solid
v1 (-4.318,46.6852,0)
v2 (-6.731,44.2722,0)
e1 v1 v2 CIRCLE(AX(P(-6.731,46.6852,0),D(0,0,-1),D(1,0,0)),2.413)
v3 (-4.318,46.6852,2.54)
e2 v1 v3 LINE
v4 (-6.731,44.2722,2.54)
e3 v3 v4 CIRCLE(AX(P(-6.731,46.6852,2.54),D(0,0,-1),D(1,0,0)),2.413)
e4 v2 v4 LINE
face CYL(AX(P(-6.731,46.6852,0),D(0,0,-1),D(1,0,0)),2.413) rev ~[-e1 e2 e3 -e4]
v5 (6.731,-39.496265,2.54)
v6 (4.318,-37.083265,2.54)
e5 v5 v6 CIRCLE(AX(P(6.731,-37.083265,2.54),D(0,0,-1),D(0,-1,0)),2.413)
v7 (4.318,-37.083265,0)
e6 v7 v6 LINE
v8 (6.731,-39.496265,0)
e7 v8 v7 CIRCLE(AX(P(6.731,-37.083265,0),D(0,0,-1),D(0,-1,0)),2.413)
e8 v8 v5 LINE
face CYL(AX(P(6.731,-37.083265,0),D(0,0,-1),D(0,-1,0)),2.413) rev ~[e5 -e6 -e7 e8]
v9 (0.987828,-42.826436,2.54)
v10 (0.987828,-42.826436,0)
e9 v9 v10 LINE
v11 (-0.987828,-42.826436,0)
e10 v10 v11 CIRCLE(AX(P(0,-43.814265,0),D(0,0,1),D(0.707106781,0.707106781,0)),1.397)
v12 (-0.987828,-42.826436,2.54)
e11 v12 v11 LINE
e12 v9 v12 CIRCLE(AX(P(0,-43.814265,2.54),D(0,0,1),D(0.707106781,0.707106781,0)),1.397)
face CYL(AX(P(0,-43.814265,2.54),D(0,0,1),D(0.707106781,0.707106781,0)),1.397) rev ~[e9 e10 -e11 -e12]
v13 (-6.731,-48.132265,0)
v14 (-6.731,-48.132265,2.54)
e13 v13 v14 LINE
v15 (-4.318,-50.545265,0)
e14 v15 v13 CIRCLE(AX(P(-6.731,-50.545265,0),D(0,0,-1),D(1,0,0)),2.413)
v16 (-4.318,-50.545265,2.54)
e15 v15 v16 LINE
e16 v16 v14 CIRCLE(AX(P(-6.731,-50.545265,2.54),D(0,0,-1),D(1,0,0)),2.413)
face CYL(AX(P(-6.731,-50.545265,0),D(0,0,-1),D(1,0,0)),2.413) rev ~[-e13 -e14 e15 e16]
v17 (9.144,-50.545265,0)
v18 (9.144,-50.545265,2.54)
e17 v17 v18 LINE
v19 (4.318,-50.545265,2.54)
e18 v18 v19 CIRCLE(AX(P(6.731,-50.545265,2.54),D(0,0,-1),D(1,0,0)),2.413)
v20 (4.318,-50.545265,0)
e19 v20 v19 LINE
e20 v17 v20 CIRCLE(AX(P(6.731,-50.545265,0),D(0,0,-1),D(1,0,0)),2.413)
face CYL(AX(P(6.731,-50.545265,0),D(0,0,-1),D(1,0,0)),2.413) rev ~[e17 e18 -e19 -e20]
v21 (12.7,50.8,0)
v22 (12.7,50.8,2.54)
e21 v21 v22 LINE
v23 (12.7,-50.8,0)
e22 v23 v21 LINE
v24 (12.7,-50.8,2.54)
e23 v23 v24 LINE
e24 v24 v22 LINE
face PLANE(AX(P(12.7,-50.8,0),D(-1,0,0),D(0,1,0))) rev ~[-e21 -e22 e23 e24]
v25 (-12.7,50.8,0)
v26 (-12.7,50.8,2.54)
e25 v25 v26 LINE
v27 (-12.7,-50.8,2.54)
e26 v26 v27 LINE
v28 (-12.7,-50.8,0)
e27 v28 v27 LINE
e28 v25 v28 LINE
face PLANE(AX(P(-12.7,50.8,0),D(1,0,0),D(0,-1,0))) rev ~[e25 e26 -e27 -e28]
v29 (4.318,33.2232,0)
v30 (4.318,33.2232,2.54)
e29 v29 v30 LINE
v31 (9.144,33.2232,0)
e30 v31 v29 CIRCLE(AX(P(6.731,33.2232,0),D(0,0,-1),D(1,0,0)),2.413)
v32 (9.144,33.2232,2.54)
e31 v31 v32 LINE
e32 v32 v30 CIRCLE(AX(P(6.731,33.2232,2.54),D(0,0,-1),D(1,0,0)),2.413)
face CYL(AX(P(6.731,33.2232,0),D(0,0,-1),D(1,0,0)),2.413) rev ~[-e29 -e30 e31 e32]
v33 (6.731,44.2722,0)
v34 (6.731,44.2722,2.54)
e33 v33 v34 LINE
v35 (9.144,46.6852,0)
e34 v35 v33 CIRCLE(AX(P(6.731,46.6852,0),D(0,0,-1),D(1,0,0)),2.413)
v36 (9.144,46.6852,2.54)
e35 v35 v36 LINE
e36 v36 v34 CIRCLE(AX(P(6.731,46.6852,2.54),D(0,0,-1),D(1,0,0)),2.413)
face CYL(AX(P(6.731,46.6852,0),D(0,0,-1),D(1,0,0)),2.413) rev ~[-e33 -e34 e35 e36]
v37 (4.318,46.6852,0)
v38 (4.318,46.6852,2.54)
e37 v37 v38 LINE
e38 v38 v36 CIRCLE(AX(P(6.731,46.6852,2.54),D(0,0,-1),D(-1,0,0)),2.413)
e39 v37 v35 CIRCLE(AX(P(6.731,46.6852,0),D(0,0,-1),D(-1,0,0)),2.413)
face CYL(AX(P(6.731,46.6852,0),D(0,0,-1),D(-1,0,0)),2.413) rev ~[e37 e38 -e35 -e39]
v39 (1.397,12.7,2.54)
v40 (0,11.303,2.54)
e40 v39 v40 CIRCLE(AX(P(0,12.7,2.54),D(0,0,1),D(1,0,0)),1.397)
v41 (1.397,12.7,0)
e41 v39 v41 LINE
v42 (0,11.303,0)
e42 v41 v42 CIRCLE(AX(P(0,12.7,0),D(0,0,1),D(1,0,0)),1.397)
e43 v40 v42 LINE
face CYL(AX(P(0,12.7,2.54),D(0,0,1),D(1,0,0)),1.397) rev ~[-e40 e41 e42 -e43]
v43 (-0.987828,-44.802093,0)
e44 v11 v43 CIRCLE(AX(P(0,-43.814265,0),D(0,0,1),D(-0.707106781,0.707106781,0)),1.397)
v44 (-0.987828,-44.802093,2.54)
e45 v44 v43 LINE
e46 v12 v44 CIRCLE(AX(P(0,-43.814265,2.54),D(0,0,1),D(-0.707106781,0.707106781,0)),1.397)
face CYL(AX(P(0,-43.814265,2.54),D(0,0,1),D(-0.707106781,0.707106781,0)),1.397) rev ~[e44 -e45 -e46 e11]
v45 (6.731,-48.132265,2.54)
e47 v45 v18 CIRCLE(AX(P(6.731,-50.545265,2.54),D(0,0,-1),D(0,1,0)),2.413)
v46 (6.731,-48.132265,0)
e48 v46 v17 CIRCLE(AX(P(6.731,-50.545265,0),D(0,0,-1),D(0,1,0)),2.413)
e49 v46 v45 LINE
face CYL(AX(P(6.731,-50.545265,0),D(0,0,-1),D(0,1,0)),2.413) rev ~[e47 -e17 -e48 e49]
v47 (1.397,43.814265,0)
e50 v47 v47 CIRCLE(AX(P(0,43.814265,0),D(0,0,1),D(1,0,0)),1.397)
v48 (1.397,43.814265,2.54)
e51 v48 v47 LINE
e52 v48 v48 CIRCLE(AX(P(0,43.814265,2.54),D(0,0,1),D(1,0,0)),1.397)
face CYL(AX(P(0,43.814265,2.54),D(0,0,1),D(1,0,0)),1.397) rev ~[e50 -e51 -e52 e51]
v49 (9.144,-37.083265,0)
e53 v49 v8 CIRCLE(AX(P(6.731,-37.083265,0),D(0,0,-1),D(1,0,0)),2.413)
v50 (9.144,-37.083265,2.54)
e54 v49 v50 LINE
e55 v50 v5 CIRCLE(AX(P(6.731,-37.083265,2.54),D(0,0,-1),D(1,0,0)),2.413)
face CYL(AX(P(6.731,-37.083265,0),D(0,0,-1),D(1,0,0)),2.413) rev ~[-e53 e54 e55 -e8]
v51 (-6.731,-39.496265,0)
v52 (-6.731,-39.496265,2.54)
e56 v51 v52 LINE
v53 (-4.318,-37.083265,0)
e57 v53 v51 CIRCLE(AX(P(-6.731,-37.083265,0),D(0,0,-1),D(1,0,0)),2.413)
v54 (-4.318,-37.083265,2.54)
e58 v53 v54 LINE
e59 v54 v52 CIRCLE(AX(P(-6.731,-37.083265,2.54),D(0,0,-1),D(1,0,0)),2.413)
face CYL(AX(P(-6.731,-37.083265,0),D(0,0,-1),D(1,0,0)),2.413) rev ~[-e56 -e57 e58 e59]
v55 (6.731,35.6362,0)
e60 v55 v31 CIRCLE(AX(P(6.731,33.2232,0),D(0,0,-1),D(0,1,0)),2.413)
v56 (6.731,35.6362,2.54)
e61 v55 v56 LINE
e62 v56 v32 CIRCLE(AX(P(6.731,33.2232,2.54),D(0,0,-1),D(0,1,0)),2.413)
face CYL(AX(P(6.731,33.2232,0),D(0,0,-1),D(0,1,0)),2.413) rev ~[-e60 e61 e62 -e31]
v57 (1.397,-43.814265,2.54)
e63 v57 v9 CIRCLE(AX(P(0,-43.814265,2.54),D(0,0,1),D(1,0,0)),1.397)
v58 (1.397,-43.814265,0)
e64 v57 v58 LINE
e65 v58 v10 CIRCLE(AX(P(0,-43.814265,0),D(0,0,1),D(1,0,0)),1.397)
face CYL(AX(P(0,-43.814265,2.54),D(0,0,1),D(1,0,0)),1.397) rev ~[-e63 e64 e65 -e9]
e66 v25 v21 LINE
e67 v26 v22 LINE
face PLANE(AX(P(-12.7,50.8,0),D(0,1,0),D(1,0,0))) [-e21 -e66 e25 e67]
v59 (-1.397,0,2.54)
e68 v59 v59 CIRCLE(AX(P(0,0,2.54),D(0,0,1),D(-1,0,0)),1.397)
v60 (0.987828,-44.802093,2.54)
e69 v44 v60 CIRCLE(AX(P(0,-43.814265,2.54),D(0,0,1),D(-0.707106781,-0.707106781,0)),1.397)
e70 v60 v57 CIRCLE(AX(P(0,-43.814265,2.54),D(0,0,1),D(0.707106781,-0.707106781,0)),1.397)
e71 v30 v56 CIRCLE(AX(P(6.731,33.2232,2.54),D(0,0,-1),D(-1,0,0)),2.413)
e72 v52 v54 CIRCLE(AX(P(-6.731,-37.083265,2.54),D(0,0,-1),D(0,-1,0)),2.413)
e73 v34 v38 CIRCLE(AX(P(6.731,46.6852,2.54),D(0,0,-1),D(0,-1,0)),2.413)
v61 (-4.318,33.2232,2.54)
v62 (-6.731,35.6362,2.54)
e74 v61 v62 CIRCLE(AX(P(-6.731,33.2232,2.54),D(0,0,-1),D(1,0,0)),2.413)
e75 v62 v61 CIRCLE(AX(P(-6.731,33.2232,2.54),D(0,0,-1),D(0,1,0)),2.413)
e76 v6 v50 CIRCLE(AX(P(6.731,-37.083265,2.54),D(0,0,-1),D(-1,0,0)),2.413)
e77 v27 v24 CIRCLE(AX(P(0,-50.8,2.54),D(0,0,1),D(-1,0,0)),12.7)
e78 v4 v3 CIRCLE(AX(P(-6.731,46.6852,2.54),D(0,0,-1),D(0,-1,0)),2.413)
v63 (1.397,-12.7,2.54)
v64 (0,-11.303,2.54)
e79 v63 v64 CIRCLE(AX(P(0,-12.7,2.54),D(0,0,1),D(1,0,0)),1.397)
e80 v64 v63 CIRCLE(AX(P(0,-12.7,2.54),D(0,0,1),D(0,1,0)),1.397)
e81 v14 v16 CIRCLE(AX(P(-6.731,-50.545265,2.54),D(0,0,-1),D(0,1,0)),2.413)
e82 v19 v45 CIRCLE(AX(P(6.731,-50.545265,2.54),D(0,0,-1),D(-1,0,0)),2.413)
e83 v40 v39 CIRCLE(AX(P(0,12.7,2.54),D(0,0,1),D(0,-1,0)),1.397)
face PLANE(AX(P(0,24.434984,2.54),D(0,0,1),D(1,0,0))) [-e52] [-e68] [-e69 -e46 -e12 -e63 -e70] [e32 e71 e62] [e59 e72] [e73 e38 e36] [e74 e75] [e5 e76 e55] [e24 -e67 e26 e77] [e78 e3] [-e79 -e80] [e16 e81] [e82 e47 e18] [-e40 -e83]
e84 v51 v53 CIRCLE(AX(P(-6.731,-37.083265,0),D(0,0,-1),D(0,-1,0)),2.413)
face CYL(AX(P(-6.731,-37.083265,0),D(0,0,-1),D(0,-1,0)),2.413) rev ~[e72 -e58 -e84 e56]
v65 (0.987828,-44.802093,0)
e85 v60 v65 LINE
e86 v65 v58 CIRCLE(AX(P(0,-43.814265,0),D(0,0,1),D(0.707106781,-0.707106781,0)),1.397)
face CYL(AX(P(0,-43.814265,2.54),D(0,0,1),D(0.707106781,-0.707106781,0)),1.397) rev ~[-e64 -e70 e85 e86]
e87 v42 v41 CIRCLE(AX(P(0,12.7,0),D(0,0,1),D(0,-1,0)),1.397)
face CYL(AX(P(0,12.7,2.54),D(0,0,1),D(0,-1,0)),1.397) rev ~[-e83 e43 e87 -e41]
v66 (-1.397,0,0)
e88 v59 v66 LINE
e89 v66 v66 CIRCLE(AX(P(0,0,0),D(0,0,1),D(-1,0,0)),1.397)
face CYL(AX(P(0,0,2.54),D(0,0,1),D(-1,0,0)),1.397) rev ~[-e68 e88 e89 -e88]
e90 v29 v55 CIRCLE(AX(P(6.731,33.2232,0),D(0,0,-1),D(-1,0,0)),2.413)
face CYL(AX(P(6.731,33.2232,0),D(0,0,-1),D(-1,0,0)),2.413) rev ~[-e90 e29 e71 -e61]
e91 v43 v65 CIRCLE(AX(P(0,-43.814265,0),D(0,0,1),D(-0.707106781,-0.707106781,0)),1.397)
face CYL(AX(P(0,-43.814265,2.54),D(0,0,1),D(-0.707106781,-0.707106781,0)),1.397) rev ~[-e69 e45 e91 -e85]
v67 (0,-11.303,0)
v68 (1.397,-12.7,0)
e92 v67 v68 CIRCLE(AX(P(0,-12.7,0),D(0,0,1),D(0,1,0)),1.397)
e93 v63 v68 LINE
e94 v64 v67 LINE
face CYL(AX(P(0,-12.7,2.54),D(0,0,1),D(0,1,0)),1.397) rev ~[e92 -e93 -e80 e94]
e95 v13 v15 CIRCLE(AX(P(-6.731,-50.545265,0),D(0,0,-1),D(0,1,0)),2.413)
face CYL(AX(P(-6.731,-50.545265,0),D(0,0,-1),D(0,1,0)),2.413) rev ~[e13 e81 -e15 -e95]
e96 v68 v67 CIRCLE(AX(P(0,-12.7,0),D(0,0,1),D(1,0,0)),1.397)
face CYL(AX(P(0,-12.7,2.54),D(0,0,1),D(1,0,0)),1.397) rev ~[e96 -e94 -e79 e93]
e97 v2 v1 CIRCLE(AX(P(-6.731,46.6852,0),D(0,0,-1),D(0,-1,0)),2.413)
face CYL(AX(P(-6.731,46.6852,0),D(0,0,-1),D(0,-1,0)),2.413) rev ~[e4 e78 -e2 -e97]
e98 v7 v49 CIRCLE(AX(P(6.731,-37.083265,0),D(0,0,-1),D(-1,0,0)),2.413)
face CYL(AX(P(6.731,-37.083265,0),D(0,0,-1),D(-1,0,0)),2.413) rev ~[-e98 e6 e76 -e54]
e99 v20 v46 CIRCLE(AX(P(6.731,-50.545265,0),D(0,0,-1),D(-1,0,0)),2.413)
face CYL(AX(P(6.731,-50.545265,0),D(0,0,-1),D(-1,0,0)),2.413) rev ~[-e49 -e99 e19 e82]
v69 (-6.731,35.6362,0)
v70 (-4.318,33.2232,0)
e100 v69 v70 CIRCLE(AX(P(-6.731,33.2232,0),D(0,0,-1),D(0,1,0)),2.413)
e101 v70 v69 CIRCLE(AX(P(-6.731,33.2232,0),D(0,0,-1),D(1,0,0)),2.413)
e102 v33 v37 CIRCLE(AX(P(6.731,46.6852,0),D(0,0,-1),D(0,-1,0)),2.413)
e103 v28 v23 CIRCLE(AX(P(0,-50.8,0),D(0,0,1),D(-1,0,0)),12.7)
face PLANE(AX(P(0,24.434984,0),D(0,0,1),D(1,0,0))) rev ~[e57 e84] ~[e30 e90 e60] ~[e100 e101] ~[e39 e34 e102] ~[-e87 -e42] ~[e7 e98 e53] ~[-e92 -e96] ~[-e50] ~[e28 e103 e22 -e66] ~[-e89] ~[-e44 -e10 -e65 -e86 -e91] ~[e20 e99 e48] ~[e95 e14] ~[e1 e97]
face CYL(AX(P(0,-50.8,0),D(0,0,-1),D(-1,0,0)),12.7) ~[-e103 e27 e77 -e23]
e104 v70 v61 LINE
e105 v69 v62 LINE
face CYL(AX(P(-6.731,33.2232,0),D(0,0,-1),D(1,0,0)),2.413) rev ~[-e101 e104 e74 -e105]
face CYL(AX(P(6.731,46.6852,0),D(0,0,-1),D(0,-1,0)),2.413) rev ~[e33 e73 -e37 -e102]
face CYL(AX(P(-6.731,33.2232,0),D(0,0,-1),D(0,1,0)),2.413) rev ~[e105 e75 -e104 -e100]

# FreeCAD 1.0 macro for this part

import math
import FreeCAD as App
import Part
import Sketcher
Q = App.Units.Quantity

doc = App.newDocument("Part")
body = doc.addObject("PartDesign::Body", "Body")

# Sketch on XY plane
sketch1 = body.newObject("Sketcher::SketchObject", "Sketch")
sketch1.AttachmentSupport = (doc.getObject("XY_Plane"), [""])
sketch1.MapMode = "FlatFace"
sketch1.addGeometry([
    Part.LineSegment(App.Vector(-12.7, 50.8, 0), App.Vector(-12.7, -50.8, 0)),  # 0
    Part.ArcOfCircle(Part.Circle(App.Vector(0, -50.8, 0), App.Vector(0, 0, 1), 12.7), math.radians(180), math.radians(360)),  # 1
    Part.LineSegment(App.Vector(12.7, -50.8, 0), App.Vector(12.7, 50.8, 0)),  # 2
    Part.LineSegment(App.Vector(12.7, 50.8, 0), App.Vector(-12.7, 50.8, 0)),  # 3
    Part.ArcOfCircle(Part.Circle(App.Vector(6.731, -50.545265, 0), App.Vector(0, 0, 1), 2.413), math.radians(180), math.radians(360)),  # 4
    Part.ArcOfCircle(Part.Circle(App.Vector(6.731, -50.545265, 0), App.Vector(0, 0, 1), 2.413), math.radians(90), math.radians(180)),  # 5
    Part.ArcOfCircle(Part.Circle(App.Vector(6.731, -50.545265, 0), App.Vector(0, 0, 1), 2.413), math.radians(0), math.radians(90)),  # 6
    Part.ArcOfCircle(Part.Circle(App.Vector(6.731, -37.083265, 0), App.Vector(0, 0, 1), 2.413), math.radians(-90), math.radians(0)),  # 7
    Part.ArcOfCircle(Part.Circle(App.Vector(6.731, -37.083265, 0), App.Vector(0, 0, 1), 2.413), math.radians(180), math.radians(270)),  # 8
    Part.ArcOfCircle(Part.Circle(App.Vector(6.731, -37.083265, 0), App.Vector(0, 0, 1), 2.413), math.radians(0), math.radians(180)),  # 9
    Part.ArcOfCircle(Part.Circle(App.Vector(-6.731, -37.083265, 0), App.Vector(0, 0, 1), 2.413), math.radians(0), math.radians(270)),  # 10
    Part.ArcOfCircle(Part.Circle(App.Vector(-6.731, -37.083265, 0), App.Vector(0, 0, 1), 2.413), math.radians(-90), math.radians(0)),  # 11
    Part.ArcOfCircle(Part.Circle(App.Vector(-6.731, -50.545265, 0), App.Vector(0, 0, 1), 2.413), math.radians(90), math.radians(360)),  # 12
    Part.ArcOfCircle(Part.Circle(App.Vector(-6.731, -50.545265, 0), App.Vector(0, 0, 1), 2.413), math.radians(0), math.radians(90)),  # 13
    Part.ArcOfCircle(Part.Circle(App.Vector(6.731, 33.2232, 0), App.Vector(0, 0, 1), 2.413), math.radians(180), math.radians(360)),  # 14
    Part.ArcOfCircle(Part.Circle(App.Vector(6.731, 33.2232, 0), App.Vector(0, 0, 1), 2.413), math.radians(90), math.radians(180)),  # 15
    Part.ArcOfCircle(Part.Circle(App.Vector(6.731, 33.2232, 0), App.Vector(0, 0, 1), 2.413), math.radians(0), math.radians(90)),  # 16
    Part.ArcOfCircle(Part.Circle(App.Vector(-6.731, 33.2232, 0), App.Vector(0, 0, 1), 2.413), math.radians(90), math.radians(360)),  # 17
    Part.ArcOfCircle(Part.Circle(App.Vector(-6.731, 33.2232, 0), App.Vector(0, 0, 1), 2.413), math.radians(0), math.radians(90)),  # 18
    Part.ArcOfCircle(Part.Circle(App.Vector(-6.731, 46.6852, 0), App.Vector(0, 0, 1), 2.413), math.radians(0), math.radians(270)),  # 19
    Part.ArcOfCircle(Part.Circle(App.Vector(-6.731, 46.6852, 0), App.Vector(0, 0, 1), 2.413), math.radians(-90), math.radians(0)),  # 20
    Part.ArcOfCircle(Part.Circle(App.Vector(6.731, 46.6852, 0), App.Vector(0, 0, 1), 2.413), math.radians(0), math.radians(180)),  # 21
    Part.ArcOfCircle(Part.Circle(App.Vector(6.731, 46.6852, 0), App.Vector(0, 0, 1), 2.413), math.radians(-90), math.radians(0)),  # 22
    Part.ArcOfCircle(Part.Circle(App.Vector(6.731, 46.6852, 0), App.Vector(0, 0, 1), 2.413), math.radians(180), math.radians(270)),  # 23
], False)
sketch1.addConstraint([
    Sketcher.Constraint("Tangent", 0, 2, 1, 1),
    Sketcher.Constraint("Tangent", 1, 2, 2, 1),
    Sketcher.Constraint("Coincident", 2, 2, 3, 1),
    Sketcher.Constraint("Coincident", 3, 2, 0, 1),
    Sketcher.Constraint("Tangent", 4, 1, 5, 2),
    Sketcher.Constraint("Tangent", 5, 1, 6, 2),
    Sketcher.Constraint("Tangent", 6, 1, 4, 2),
    Sketcher.Constraint("Tangent", 7, 1, 8, 2),
    Sketcher.Constraint("Tangent", 8, 1, 9, 2),
    Sketcher.Constraint("Tangent", 9, 1, 7, 2),
    Sketcher.Constraint("Tangent", 10, 1, 11, 2),
    Sketcher.Constraint("Coincident", 11, 1, 10, 2),
    Sketcher.Constraint("Tangent", 12, 1, 13, 2),
    Sketcher.Constraint("Coincident", 13, 1, 12, 2),
    Sketcher.Constraint("Tangent", 14, 1, 15, 2),
    Sketcher.Constraint("Tangent", 15, 1, 16, 2),
    Sketcher.Constraint("Tangent", 16, 1, 14, 2),
    Sketcher.Constraint("Tangent", 17, 1, 18, 2),
    Sketcher.Constraint("Coincident", 18, 1, 17, 2),
    Sketcher.Constraint("Tangent", 19, 1, 20, 2),
    Sketcher.Constraint("Coincident", 20, 1, 19, 2),
    Sketcher.Constraint("Tangent", 21, 1, 22, 2),
    Sketcher.Constraint("Tangent", 22, 1, 23, 2),
    Sketcher.Constraint("Tangent", 23, 1, 21, 2),
    Sketcher.Constraint("Vertical", 0),
    Sketcher.Constraint("Vertical", 2),
    Sketcher.Constraint("Horizontal", 3),
    Sketcher.Constraint("Equal", 6, 7),
    Sketcher.Constraint("Equal", 9, 10),
    Sketcher.Constraint("Equal", 11, 12),
    Sketcher.Constraint("Equal", 13, 14),
    Sketcher.Constraint("Equal", 16, 17),
    Sketcher.Constraint("Equal", 18, 19),
    Sketcher.Constraint("Equal", 20, 21),
    Sketcher.Constraint("Symmetric", 0, 2, 2, 2, -1, 1),
    Sketcher.Constraint("Symmetric", 7, 3, 10, 3, -2),
    Sketcher.Constraint("Symmetric", 4, 3, 12, 3, -2),
    Sketcher.Constraint("Symmetric", 14, 3, 17, 3, -2),
    Sketcher.Constraint("Symmetric", 19, 3, 21, 3, -2),
    Sketcher.Constraint("Horizontal", 13, 3, 4, 1),
    Sketcher.Constraint("Horizontal", 4, 1, 6, 1),
    Sketcher.Constraint("Horizontal", 11, 3, 8, 1),
    Sketcher.Constraint("Horizontal", 8, 1, 9, 1),
    Sketcher.Constraint("Horizontal", 9, 1, 10, 1),
    Sketcher.Constraint("Horizontal", 6, 1, 13, 1),
    Sketcher.Constraint("Horizontal", 18, 3, 14, 1),
    Sketcher.Constraint("Horizontal", 14, 1, 16, 1),
    Sketcher.Constraint("Horizontal", 16, 1, 18, 1),
    Sketcher.Constraint("Horizontal", 23, 3, 19, 1),
    Sketcher.Constraint("Horizontal", 19, 1, 21, 1),
    Sketcher.Constraint("Horizontal", 21, 1, 23, 1),
    Sketcher.Constraint("Vertical", 6, 3, 7, 3),
    Sketcher.Constraint("Vertical", 9, 3, 14, 3),
    Sketcher.Constraint("Vertical", 18, 3, 19, 3),
    Sketcher.Constraint("Vertical", 23, 3, 5, 1),
    Sketcher.Constraint("Vertical", 5, 1, 7, 1),
    Sketcher.Constraint("Vertical", 20, 3, 11, 1),
    Sketcher.Constraint("Vertical", 11, 1, 12, 1),
    Sketcher.Constraint("Vertical", 7, 1, 15, 1),
    Sketcher.Constraint("Vertical", 12, 1, 17, 1),
    Sketcher.Constraint("Vertical", 17, 1, 20, 1),
    Sketcher.Constraint("Vertical", 15, 1, 22, 1),
    Sketcher.Constraint("Radius", 1, Q("0.5 in")),
    Sketcher.Constraint("DistanceY", 0, 2, 0, 1, Q("4 in")),
    Sketcher.Constraint("Radius", 4, Q("0.095 in")),
    Sketcher.Constraint("DistanceX", -1, 1, 4, 1, Q("0.17 in")),
    Sketcher.Constraint("DistanceY", 4, 3, 7, 3, Q("0.53 in")),
    Sketcher.Constraint("DistanceY", 17, 3, 19, 3, Q("0.53 in")),
    Sketcher.Constraint("DistanceY", -1, 1, 14, 3, Q("1.308 in")),
    Sketcher.Constraint("DistanceY", 4, 3, -1, 1, 50.545265),
])
pad1 = body.newObject("PartDesign::Pad", "Pad")
pad1.Profile = sketch1
pad1.Length = Q("0.1 in")

# Sketch on XY plane
sketch2 = body.newObject("Sketcher::SketchObject", "Sketch001")
sketch2.AttachmentSupport = (doc.getObject("XY_Plane"), [""])
sketch2.MapMode = "FlatFace"
sketch2.AttachmentOffset = App.Placement(App.Vector(0, 0, 0.1 * 25.4), App.Rotation())
sketch2.addGeometry([
    Part.Circle(App.Vector(0, 0, 0), App.Vector(0, 0, 1), 1.397),  # 0
    Part.ArcOfCircle(Part.Circle(App.Vector(0, -43.814265, 0), App.Vector(0, 0, 1), 1.397), math.radians(45), math.radians(135)),  # 1
    Part.ArcOfCircle(Part.Circle(App.Vector(0, -43.814265, 0), App.Vector(0, 0, 1), 1.397), math.radians(135), math.radians(225)),  # 2
    Part.ArcOfCircle(Part.Circle(App.Vector(0, -43.814265, 0), App.Vector(0, 0, 1), 1.397), math.radians(-135), math.radians(-45)),  # 3
    Part.ArcOfCircle(Part.Circle(App.Vector(0, -43.814265, 0), App.Vector(0, 0, 1), 1.397), math.radians(-45), math.radians(0)),  # 4
    Part.ArcOfCircle(Part.Circle(App.Vector(0, -43.814265, 0), App.Vector(0, 0, 1), 1.397), math.radians(0), math.radians(45)),  # 5
    Part.Circle(App.Vector(0, 43.814265, 0), App.Vector(0, 0, 1), 1.397),  # 6
], False)
sketch2.addConstraint([
    Sketcher.Constraint("Tangent", 1, 2, 2, 1),
    Sketcher.Constraint("Tangent", 2, 2, 3, 1),
    Sketcher.Constraint("Tangent", 3, 2, 4, 1),
    Sketcher.Constraint("Tangent", 4, 2, 5, 1),
    Sketcher.Constraint("Tangent", 5, 2, 1, 1),
    Sketcher.Constraint("Coincident", 0, 3, -1, 1),
    Sketcher.Constraint("Coincident", 3, 3, 1, 3),
    Sketcher.Constraint("Equal", 0, 1),
    Sketcher.Constraint("Equal", 5, 6),
    Sketcher.Constraint("Symmetric", 1, 3, 6, 3, -1, 1),
    Sketcher.Constraint("Symmetric", 2, 2, 3, 2, -2),
    Sketcher.Constraint("Horizontal", 5, 3, 4, 2),
    Sketcher.Constraint("Horizontal", 1, 2, 5, 2),
    Sketcher.Constraint("Vertical", 1, 2, 2, 2),
    Sketcher.Constraint("Diameter", 0, Q("0.11 in")),
    Sketcher.Constraint("DistanceX", 1, 2, -1, 1, 0.987828),
    Sketcher.Constraint("DistanceY", 1, 3, 6, 3, 87.628529),
])
pocket1 = body.newObject("PartDesign::Pocket", "Pocket")
pocket1.Profile = sketch2
pocket1.Type = "ThroughAll"

# Sketch on XY plane
sketch3 = body.newObject("Sketcher::SketchObject", "Sketch002")
sketch3.AttachmentSupport = (doc.getObject("XY_Plane"), [""])
sketch3.MapMode = "FlatFace"
sketch3.AttachmentOffset = App.Placement(App.Vector(0, 0, 0.1 * 25.4), App.Rotation())
sketch3.addGeometry([
    Part.ArcOfCircle(Part.Circle(App.Vector(0, 12.7, 0), App.Vector(0, 0, 1), 1.397), math.radians(0), math.radians(270)),
    Part.ArcOfCircle(Part.Circle(App.Vector(0, 12.7, 0), App.Vector(0, 0, 1), 1.397), math.radians(-90), math.radians(0)),
    Part.ArcOfCircle(Part.Circle(App.Vector(0, -12.7, 0), App.Vector(0, 0, 1), 1.397), math.radians(0), math.radians(90)),
    Part.ArcOfCircle(Part.Circle(App.Vector(0, -12.7, 0), App.Vector(0, 0, 1), 1.397), math.radians(90), math.radians(360)),
], False)
sketch3.addConstraint([
    Sketcher.Constraint("Tangent", 0, 1, 1, 2),
    Sketcher.Constraint("Coincident", 1, 1, 0, 2),
    Sketcher.Constraint("Tangent", 2, 1, 3, 2),
    Sketcher.Constraint("Coincident", 3, 1, 2, 2),
    Sketcher.Constraint("Equal", 1, 2),
    Sketcher.Constraint("Symmetric", 0, 3, 2, 3, -1, 1),
    Sketcher.Constraint("Symmetric", 0, 1, 2, 1, -1),
    Sketcher.Constraint("PointOnObject", 1, 1, -2),
    Sketcher.Constraint("PointOnObject", 3, 1, -2),
    Sketcher.Constraint("Horizontal", 1, 3, 0, 1),
    Sketcher.Constraint("Radius", 0, Q("0.055 in")),
    Sketcher.Constraint("DistanceY", 2, 3, 0, 3, Q("1 in")),
])
pocket2 = body.newObject("PartDesign::Pocket", "Pocket001")
pocket2.Profile = sketch3
pocket2.Length = Q("1 in")

doc.recompute()
